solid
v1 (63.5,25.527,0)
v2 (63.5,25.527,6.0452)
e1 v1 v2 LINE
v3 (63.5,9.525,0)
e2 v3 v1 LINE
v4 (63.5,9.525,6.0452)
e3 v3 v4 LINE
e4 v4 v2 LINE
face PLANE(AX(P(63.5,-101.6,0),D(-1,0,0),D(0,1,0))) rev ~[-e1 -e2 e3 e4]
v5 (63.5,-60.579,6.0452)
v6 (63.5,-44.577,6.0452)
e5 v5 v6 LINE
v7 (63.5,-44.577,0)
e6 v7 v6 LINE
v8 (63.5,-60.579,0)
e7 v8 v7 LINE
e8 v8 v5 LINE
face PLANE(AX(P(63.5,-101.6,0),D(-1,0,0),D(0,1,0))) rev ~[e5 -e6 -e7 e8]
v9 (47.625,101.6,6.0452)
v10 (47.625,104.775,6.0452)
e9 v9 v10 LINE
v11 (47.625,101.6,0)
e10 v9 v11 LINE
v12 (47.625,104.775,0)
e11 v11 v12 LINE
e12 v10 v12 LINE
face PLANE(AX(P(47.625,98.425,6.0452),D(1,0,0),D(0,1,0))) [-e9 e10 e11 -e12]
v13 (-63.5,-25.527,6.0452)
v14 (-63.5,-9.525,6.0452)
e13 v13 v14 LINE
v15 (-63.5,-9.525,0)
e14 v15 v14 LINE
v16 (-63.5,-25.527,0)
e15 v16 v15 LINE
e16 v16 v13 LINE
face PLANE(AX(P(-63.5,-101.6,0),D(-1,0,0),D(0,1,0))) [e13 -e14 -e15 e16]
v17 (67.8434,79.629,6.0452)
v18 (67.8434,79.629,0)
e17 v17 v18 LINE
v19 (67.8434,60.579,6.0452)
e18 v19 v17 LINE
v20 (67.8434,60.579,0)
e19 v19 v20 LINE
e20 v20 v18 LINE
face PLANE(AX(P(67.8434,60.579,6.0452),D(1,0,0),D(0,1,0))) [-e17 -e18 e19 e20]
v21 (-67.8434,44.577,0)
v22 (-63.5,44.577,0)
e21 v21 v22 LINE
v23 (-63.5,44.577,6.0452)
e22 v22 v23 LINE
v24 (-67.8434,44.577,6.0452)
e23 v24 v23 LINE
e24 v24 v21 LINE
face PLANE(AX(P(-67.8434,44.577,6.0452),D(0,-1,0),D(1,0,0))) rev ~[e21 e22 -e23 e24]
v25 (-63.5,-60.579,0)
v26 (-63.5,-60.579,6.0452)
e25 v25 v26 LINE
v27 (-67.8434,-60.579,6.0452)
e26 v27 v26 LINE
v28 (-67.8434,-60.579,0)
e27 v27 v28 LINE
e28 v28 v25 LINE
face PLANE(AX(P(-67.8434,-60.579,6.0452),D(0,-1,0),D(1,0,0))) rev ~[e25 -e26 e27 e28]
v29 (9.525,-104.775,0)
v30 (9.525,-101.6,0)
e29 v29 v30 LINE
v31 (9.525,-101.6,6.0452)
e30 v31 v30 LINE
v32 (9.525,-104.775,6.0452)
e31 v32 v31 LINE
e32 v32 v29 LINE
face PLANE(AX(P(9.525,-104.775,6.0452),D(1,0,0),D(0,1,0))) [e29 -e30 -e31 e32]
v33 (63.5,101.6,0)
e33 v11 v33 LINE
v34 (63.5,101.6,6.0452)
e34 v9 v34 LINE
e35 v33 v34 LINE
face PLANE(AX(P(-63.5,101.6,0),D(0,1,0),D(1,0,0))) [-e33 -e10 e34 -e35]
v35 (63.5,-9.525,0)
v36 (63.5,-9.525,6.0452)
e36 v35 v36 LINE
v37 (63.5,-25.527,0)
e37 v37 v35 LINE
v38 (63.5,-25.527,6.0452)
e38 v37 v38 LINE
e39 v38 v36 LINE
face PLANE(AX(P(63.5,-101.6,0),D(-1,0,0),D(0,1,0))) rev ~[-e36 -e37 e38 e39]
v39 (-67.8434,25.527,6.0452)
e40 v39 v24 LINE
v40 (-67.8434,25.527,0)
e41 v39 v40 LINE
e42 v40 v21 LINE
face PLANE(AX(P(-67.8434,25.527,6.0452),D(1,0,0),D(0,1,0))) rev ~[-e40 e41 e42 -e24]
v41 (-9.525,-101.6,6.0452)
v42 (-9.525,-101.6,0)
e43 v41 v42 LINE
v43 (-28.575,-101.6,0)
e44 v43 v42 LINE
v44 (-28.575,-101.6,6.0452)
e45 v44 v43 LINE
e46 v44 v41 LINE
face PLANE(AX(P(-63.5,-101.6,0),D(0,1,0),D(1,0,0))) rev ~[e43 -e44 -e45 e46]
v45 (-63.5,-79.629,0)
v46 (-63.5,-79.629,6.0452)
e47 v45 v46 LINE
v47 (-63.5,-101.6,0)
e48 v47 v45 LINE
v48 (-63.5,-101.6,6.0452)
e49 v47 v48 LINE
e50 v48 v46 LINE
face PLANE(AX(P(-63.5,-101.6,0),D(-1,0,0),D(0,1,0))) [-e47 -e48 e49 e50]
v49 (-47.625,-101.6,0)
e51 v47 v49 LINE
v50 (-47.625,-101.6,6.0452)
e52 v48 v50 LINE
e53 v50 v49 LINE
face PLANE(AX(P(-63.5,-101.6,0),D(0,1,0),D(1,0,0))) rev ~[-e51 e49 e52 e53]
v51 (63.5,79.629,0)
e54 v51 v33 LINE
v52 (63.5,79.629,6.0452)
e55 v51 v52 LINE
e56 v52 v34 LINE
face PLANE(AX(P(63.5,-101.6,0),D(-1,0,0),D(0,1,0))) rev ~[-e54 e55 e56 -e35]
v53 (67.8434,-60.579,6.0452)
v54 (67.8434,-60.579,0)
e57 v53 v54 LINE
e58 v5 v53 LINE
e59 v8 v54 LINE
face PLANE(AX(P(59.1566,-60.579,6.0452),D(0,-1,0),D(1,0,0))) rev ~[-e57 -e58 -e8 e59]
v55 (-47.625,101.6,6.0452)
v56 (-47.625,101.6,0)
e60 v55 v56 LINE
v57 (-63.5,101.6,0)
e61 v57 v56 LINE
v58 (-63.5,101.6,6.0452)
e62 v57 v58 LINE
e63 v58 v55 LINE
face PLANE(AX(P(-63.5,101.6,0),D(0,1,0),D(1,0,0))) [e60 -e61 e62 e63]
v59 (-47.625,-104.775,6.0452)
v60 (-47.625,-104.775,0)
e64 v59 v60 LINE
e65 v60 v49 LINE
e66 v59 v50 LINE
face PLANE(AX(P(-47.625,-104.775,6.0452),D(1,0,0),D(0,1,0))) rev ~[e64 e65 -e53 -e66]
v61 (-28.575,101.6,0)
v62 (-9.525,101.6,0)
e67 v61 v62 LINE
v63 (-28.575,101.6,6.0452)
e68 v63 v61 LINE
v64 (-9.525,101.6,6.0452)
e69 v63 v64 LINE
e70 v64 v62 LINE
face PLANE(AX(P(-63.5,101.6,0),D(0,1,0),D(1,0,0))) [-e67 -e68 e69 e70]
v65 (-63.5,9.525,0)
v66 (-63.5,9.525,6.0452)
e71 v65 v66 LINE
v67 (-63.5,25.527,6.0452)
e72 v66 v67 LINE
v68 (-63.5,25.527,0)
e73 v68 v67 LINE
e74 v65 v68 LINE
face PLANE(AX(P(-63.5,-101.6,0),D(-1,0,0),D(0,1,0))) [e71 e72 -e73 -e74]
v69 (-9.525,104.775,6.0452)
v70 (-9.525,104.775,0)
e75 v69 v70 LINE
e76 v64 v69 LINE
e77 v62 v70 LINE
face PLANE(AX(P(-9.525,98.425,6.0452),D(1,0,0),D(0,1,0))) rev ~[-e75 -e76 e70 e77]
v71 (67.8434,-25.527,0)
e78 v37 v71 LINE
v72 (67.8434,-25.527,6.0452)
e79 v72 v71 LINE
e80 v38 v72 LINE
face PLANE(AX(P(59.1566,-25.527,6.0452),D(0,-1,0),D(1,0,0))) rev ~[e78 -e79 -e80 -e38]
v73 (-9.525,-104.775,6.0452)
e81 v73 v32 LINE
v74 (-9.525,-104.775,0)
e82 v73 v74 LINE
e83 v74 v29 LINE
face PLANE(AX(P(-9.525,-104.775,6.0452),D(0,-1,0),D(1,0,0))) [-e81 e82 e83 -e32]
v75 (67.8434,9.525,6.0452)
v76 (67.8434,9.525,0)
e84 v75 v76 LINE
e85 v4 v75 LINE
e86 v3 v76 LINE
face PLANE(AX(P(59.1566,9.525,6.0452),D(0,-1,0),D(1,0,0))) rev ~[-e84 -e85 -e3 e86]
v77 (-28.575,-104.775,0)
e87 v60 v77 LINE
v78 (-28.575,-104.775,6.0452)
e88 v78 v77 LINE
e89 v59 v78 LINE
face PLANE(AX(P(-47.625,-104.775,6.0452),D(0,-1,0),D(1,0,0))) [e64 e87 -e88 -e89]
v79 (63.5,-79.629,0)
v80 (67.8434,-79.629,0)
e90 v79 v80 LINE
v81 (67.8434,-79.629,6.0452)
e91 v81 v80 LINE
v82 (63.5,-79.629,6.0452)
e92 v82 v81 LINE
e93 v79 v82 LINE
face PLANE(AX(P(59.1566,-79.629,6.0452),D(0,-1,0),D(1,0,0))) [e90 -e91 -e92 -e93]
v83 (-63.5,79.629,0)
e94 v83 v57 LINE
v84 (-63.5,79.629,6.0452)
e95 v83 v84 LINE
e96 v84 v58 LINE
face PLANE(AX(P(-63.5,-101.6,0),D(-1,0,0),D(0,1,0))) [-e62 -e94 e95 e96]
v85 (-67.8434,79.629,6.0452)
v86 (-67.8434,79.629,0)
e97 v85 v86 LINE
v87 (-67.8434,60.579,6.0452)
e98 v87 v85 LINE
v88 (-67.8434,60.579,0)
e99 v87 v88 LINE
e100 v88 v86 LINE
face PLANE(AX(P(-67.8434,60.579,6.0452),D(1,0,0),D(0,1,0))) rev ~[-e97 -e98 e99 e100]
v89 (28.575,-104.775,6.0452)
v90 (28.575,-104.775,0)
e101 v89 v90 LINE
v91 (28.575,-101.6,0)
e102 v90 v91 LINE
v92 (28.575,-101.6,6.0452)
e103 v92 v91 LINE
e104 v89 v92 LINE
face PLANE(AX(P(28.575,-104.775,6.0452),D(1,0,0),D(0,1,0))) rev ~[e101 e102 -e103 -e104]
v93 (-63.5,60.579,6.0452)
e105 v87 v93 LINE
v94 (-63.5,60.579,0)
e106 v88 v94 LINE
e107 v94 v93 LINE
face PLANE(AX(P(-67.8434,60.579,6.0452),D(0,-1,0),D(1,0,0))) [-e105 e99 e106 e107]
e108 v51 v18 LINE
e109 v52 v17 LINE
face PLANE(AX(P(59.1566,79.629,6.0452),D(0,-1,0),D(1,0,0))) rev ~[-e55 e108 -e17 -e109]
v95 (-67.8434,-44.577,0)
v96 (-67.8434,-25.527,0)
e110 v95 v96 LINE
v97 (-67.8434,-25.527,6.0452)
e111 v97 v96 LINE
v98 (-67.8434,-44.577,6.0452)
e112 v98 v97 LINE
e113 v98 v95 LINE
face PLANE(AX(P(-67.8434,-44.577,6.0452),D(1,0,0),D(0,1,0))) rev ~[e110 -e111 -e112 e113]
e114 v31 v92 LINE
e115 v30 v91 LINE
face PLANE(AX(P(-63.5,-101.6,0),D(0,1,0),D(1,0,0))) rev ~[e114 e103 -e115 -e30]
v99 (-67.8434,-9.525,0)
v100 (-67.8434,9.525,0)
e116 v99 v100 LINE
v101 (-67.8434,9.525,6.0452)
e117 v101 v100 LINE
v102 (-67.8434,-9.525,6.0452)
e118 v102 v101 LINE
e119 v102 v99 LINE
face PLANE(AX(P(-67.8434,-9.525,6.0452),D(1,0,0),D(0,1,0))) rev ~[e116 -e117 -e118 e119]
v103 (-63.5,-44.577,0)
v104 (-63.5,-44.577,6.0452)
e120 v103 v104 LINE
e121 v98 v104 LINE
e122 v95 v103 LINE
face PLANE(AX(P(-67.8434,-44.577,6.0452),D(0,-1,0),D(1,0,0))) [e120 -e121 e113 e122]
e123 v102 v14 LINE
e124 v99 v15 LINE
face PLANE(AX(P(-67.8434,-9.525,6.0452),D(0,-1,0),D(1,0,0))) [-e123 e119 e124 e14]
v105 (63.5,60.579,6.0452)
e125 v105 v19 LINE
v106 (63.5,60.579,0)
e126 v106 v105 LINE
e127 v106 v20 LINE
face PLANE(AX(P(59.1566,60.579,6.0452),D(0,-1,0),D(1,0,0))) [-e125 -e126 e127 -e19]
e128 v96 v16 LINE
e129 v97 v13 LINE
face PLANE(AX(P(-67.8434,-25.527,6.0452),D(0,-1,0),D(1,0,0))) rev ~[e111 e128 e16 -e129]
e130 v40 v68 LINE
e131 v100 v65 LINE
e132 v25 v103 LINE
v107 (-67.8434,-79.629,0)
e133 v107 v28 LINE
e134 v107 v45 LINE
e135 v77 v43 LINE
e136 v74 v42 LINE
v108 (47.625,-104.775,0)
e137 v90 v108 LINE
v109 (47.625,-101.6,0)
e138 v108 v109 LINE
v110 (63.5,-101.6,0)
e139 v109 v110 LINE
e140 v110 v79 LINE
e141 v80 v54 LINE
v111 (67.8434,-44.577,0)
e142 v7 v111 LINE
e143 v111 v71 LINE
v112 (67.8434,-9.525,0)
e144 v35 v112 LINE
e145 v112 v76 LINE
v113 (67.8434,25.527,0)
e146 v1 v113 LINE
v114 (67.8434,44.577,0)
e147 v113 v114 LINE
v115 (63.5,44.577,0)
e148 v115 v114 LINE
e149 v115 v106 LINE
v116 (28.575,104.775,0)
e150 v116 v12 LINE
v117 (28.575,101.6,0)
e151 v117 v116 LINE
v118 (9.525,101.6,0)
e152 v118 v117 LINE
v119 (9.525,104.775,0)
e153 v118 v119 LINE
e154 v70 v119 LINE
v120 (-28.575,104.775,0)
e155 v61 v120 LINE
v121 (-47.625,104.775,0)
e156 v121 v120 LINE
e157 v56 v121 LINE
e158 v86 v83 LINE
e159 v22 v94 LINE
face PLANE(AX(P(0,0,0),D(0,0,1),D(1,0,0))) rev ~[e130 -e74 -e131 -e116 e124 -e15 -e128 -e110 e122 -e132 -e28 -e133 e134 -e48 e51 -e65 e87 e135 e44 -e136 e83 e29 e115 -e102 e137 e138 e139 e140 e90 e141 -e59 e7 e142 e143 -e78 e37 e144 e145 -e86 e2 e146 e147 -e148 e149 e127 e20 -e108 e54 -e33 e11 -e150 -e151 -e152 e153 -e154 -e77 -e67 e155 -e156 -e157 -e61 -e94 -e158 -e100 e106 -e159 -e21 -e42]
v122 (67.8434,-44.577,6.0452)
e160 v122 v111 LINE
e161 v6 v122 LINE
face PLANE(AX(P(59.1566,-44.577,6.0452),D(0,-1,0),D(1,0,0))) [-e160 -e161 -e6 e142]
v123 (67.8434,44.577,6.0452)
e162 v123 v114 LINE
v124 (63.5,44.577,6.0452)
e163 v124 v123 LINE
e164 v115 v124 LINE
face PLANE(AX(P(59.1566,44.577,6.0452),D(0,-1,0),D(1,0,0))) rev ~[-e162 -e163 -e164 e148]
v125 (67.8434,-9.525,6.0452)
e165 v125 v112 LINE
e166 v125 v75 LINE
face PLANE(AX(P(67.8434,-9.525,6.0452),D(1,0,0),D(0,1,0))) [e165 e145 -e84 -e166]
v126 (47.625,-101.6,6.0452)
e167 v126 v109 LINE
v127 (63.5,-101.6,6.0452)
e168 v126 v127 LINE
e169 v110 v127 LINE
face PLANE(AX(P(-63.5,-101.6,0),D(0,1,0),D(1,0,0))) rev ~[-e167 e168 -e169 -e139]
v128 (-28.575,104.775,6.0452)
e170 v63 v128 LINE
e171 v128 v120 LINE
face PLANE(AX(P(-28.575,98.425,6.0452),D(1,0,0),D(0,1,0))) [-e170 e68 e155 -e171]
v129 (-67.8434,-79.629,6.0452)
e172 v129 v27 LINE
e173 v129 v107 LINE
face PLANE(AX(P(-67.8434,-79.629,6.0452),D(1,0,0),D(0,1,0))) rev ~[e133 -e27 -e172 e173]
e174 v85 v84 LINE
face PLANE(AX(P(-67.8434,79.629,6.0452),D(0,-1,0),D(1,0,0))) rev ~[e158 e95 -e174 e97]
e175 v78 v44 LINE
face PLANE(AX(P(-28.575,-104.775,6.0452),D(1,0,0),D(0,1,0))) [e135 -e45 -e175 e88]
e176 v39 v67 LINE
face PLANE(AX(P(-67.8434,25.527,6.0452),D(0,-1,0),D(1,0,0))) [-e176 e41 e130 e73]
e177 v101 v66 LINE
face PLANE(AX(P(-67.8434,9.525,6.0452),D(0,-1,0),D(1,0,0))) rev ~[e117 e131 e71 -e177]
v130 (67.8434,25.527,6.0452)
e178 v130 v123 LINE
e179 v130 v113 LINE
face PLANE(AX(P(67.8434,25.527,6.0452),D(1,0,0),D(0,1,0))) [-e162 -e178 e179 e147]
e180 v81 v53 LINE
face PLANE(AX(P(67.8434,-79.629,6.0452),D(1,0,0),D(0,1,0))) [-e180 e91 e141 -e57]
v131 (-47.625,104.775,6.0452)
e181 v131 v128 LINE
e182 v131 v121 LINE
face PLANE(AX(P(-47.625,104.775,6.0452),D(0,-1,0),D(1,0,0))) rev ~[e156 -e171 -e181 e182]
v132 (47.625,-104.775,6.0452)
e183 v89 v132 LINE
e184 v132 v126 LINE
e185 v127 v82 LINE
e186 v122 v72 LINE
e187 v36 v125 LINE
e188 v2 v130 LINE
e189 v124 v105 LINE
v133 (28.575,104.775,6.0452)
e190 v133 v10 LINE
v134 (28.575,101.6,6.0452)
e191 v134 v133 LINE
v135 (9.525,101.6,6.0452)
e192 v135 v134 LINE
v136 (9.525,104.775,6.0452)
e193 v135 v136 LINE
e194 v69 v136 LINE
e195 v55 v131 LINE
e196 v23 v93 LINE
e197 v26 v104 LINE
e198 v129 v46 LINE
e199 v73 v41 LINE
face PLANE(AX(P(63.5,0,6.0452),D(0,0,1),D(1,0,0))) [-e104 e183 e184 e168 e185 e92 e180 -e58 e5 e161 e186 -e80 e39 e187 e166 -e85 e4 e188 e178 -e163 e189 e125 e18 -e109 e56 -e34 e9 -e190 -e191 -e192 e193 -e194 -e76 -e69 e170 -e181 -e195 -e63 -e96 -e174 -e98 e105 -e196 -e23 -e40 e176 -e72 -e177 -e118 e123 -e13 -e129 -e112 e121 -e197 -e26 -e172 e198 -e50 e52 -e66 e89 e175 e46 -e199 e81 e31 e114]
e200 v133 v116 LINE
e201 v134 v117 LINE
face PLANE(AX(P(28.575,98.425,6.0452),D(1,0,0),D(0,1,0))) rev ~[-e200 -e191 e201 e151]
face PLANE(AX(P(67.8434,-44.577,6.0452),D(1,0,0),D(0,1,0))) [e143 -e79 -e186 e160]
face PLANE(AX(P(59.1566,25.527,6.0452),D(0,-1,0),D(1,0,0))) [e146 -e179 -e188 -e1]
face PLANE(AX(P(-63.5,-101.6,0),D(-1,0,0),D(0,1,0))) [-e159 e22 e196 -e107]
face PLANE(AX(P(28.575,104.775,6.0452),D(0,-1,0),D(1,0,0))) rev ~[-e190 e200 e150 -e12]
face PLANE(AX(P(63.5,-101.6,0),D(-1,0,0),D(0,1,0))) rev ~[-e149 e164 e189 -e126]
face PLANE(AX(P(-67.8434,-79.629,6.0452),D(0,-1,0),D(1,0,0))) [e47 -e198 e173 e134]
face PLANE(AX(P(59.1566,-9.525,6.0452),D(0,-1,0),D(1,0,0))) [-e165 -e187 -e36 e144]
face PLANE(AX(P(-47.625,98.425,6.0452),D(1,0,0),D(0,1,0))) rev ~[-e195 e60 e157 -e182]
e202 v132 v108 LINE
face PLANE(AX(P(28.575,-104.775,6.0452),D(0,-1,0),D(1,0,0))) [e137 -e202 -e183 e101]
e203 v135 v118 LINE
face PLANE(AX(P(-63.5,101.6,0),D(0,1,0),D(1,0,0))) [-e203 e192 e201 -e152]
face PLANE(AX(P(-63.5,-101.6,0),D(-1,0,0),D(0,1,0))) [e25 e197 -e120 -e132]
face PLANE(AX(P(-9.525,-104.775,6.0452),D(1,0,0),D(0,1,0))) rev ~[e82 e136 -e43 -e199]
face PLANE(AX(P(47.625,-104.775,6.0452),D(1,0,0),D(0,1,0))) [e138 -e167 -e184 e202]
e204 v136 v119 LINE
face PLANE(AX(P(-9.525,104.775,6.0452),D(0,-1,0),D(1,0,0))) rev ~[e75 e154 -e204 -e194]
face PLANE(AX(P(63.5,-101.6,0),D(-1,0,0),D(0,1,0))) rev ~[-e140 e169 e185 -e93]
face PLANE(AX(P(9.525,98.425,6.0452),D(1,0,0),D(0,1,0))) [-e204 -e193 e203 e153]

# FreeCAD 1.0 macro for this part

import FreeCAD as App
import Part
import Sketcher
Q = App.Units.Quantity


def add_polygon(sketch, points):
    """Adds a closed chain of lines whose ends are joined by coincident constraints."""
    first, n = sketch.GeometryCount, len(points)
    for a, b in zip(points, points[1:] + points[:1]):
        sketch.addGeometry(Part.LineSegment(App.Vector(*a, 0), App.Vector(*b, 0)), False)
    for i in range(n):
        sketch.addConstraint(Sketcher.Constraint("Coincident", first + i, 2, first + (i + 1) % n, 1))

doc = App.newDocument("Part")
body = doc.addObject("PartDesign::Body", "Body")

sketch1 = body.newObject("Sketcher::SketchObject", "Sketch")
sketch1.AttachmentSupport = (doc.getObject("XY_Plane"), [""])
sketch1.MapMode = "FlatFace"
add_polygon(sketch1, [(-63.5, 101.6), (-63.5, -101.6), (63.5, -101.6), (63.5, 101.6)])
sketch1.addConstraint([
    Sketcher.Constraint("Vertical", 0),
    Sketcher.Constraint("Horizontal", 1),
    Sketcher.Constraint("Vertical", 2),
    Sketcher.Constraint("Horizontal", 3),
    Sketcher.Constraint("Symmetric", 0, 2, 2, 2, -1, 1),
    Sketcher.Constraint("DistanceX", 1, 1, 1, 2, Q("5 in")),
    Sketcher.Constraint("DistanceY", 0, 2, 0, 1, Q("8 in")),
])
pad1 = body.newObject("PartDesign::Pad", "Pad")
pad1.Profile = sketch1
pad1.Length = Q("0.238 in")

sketch2 = body.newObject("Sketcher::SketchObject", "Sketch001")
sketch2.AttachmentSupport = (doc.getObject("XY_Plane"), [""])
sketch2.MapMode = "FlatFace"
sketch2.AttachmentOffset = App.Placement(App.Vector(0, 0, 0.238 * 25.4), App.Rotation())
add_polygon(sketch2, [(-9.525, 104.775), (-9.525, 98.425), (9.525, 98.425), (9.525, 104.775)])
add_polygon(sketch2, [(-47.625, 104.775), (-47.625, 98.425), (-28.575, 98.425), (-28.575, 104.775)])
add_polygon(sketch2, [(28.575, 104.775), (28.575, 98.425), (47.625, 98.425), (47.625, 104.775)])
add_polygon(sketch2, [(28.575, -98.425), (28.575, -104.775), (47.625, -104.775), (47.625, -98.425)])
add_polygon(sketch2, [(-47.625, -98.425), (-47.625, -104.775), (-28.575, -104.775), (-28.575, -98.425)])
add_polygon(sketch2, [(-9.525, -98.425), (-9.525, -104.775), (9.525, -104.775), (9.525, -98.425)])
sketch2.addConstraint([
    Sketcher.Constraint("Vertical", 0),
    Sketcher.Constraint("Horizontal", 1),
    Sketcher.Constraint("Vertical", 2),
    Sketcher.Constraint("Horizontal", 3),
    Sketcher.Constraint("Vertical", 4),
    Sketcher.Constraint("Horizontal", 5),
    Sketcher.Constraint("Vertical", 6),
    Sketcher.Constraint("Horizontal", 7),
    Sketcher.Constraint("Vertical", 8),
    Sketcher.Constraint("Horizontal", 9),
    Sketcher.Constraint("Vertical", 10),
    Sketcher.Constraint("Horizontal", 11),
    Sketcher.Constraint("Vertical", 12),
    Sketcher.Constraint("Horizontal", 13),
    Sketcher.Constraint("Vertical", 14),
    Sketcher.Constraint("Horizontal", 15),
    Sketcher.Constraint("Vertical", 16),
    Sketcher.Constraint("Horizontal", 17),
    Sketcher.Constraint("Vertical", 18),
    Sketcher.Constraint("Horizontal", 19),
    Sketcher.Constraint("Vertical", 20),
    Sketcher.Constraint("Horizontal", 21),
    Sketcher.Constraint("Vertical", 22),
    Sketcher.Constraint("Horizontal", 23),
    Sketcher.Constraint("Symmetric", 6, 2, 12, 2, -1, 1),
    Sketcher.Constraint("Symmetric", 4, 2, 14, 2, -1, 1),
    Sketcher.Constraint("Symmetric", 10, 2, 16, 2, -1, 1),
    Sketcher.Constraint("Symmetric", 8, 2, 18, 2, -1, 1),
    Sketcher.Constraint("Symmetric", 2, 2, 20, 2, -1, 1),
    Sketcher.Constraint("Symmetric", 0, 2, 22, 2, -1, 1),
    Sketcher.Constraint("Symmetric", 5, 2, 8, 2, -2),
    Sketcher.Constraint("Symmetric", 7, 2, 10, 2, -2),
    Sketcher.Constraint("Horizontal", 1, 2, 4, 2),
    Sketcher.Constraint("Horizontal", 3, 2, 6, 2),
    Sketcher.Constraint("Vertical", 3, 2, 20, 2),
    Sketcher.Constraint("Equal", 3, 5),
    Sketcher.Constraint("DistanceY", 12, 2, 8, 2, Q("8 in")),
    Sketcher.Constraint("DistanceX", 16, 2, 12, 2, Q("3 in")),
    Sketcher.Constraint("DistanceX", 1, 1, 1, 2, Q("0.75 in")),
    Sketcher.Constraint("DistanceY", 0, 2, 0, 1, Q("0.25 in")),
])
pad2 = body.newObject("PartDesign::Pad", "Pad001")
pad2.Profile = sketch2
pad2.Length = Q("0.238 in")
pad2.Reversed = True

sketch3 = body.newObject("Sketcher::SketchObject", "Sketch002")
sketch3.AttachmentSupport = (doc.getObject("XY_Plane"), [""])
sketch3.MapMode = "FlatFace"
sketch3.AttachmentOffset = App.Placement(App.Vector(0, 0, 0.238 * 25.4), App.Rotation())
add_polygon(sketch3, [(59.1566, 9.525), (59.1566, -9.525), (67.8434, -9.525), (67.8434, 9.525)])
add_polygon(sketch3, [(59.1566, 44.577), (59.1566, 25.527), (67.8434, 25.527), (67.8434, 44.577)])
add_polygon(sketch3, [(59.1566, 79.629), (59.1566, 60.579), (67.8434, 60.579), (67.8434, 79.629)])
add_polygon(sketch3, [(59.1566, -60.579), (59.1566, -79.629), (67.8434, -79.629), (67.8434, -60.579)])
add_polygon(sketch3, [(59.1566, -25.527), (59.1566, -44.577), (67.8434, -44.577), (67.8434, -25.527)])
add_polygon(sketch3, [(-67.8434, -25.527), (-67.8434, -44.577), (-59.1566, -44.577), (-59.1566, -25.527)])
add_polygon(sketch3, [(-67.8434, -60.579), (-67.8434, -79.629), (-59.1566, -79.629), (-59.1566, -60.579)])
add_polygon(sketch3, [(-67.8434, 79.629), (-67.8434, 60.579), (-59.1566, 60.579), (-59.1566, 79.629)])
add_polygon(sketch3, [(-67.8434, 44.577), (-67.8434, 25.527), (-59.1566, 25.527), (-59.1566, 44.577)])
add_polygon(sketch3, [(-67.8434, 9.525), (-67.8434, -9.525), (-59.1566, -9.525), (-59.1566, 9.525)])
sketch3.addConstraint([
    Sketcher.Constraint("Vertical", 0),
    Sketcher.Constraint("Horizontal", 1),
    Sketcher.Constraint("Vertical", 2),
    Sketcher.Constraint("Horizontal", 3),
    Sketcher.Constraint("Vertical", 4),
    Sketcher.Constraint("Horizontal", 5),
    Sketcher.Constraint("Vertical", 6),
    Sketcher.Constraint("Horizontal", 7),
    Sketcher.Constraint("Vertical", 8),
    Sketcher.Constraint("Horizontal", 9),
    Sketcher.Constraint("Vertical", 10),
    Sketcher.Constraint("Horizontal", 11),
    Sketcher.Constraint("Vertical", 12),
    Sketcher.Constraint("Horizontal", 13),
    Sketcher.Constraint("Vertical", 14),
    Sketcher.Constraint("Horizontal", 15),
    Sketcher.Constraint("Vertical", 16),
    Sketcher.Constraint("Horizontal", 17),
    Sketcher.Constraint("Vertical", 18),
    Sketcher.Constraint("Horizontal", 19),
    Sketcher.Constraint("Vertical", 20),
    Sketcher.Constraint("Horizontal", 21),
    Sketcher.Constraint("Vertical", 22),
    Sketcher.Constraint("Horizontal", 23),
    Sketcher.Constraint("Vertical", 24),
    Sketcher.Constraint("Horizontal", 25),
    Sketcher.Constraint("Vertical", 26),
    Sketcher.Constraint("Horizontal", 27),
    Sketcher.Constraint("Vertical", 28),
    Sketcher.Constraint("Horizontal", 29),
    Sketcher.Constraint("Vertical", 30),
    Sketcher.Constraint("Horizontal", 31),
    Sketcher.Constraint("Vertical", 32),
    Sketcher.Constraint("Horizontal", 33),
    Sketcher.Constraint("Vertical", 34),
    Sketcher.Constraint("Horizontal", 35),
    Sketcher.Constraint("Vertical", 36),
    Sketcher.Constraint("Horizontal", 37),
    Sketcher.Constraint("Vertical", 38),
    Sketcher.Constraint("Horizontal", 39),
    Sketcher.Constraint("Symmetric", 6, 2, 20, 2, -1, 1),
    Sketcher.Constraint("Symmetric", 4, 2, 22, 2, -1, 1),
    Sketcher.Constraint("Symmetric", 10, 2, 24, 2, -1, 1),
    Sketcher.Constraint("Symmetric", 8, 2, 26, 2, -1, 1),
    Sketcher.Constraint("Symmetric", 14, 2, 28, 2, -1, 1),
    Sketcher.Constraint("Symmetric", 12, 2, 30, 2, -1, 1),
    Sketcher.Constraint("Symmetric", 18, 2, 32, 2, -1, 1),
    Sketcher.Constraint("Symmetric", 16, 2, 34, 2, -1, 1),
    Sketcher.Constraint("Symmetric", 2, 2, 36, 2, -1, 1),
    Sketcher.Constraint("Symmetric", 0, 2, 38, 2, -1, 1),
    Sketcher.Constraint("Symmetric", 17, 2, 20, 2, -2),
    Sketcher.Constraint("Symmetric", 19, 2, 22, 2, -2),
    Sketcher.Constraint("Symmetric", 13, 2, 24, 2, -2),
    Sketcher.Constraint("Symmetric", 15, 2, 26, 2, -2),
    Sketcher.Constraint("Horizontal", 1, 2, 36, 2),
    Sketcher.Constraint("Vertical", 3, 2, 4, 2),
    Sketcher.Constraint("Vertical", 2, 2, 5, 2),
    Sketcher.Constraint("Vertical", 7, 2, 8, 2),
    Sketcher.Constraint("Vertical", 6, 2, 9, 2),
    Sketcher.Constraint("Equal", 2, 4),
    Sketcher.Constraint("Equal", 6, 8),
    Sketcher.Constraint("DistanceX", 20, 2, 16, 2, Q("5 in")),
    Sketcher.Constraint("DistanceY", 0, 2, 0, 1, Q("0.75 in")),
    Sketcher.Constraint("DistanceX", 1, 1, 1, 2, Q("0.342 in")),
    Sketcher.Constraint("DistanceY", 3, 2, 4, 2, Q("0.63 in")),
    Sketcher.Constraint("DistanceY", 7, 2, 8, 2, Q("0.63 in")),
])
pad3 = body.newObject("PartDesign::Pad", "Pad002")
pad3.Profile = sketch3
pad3.Length = Q("0.238 in")
pad3.Reversed = True

doc.recompute()
